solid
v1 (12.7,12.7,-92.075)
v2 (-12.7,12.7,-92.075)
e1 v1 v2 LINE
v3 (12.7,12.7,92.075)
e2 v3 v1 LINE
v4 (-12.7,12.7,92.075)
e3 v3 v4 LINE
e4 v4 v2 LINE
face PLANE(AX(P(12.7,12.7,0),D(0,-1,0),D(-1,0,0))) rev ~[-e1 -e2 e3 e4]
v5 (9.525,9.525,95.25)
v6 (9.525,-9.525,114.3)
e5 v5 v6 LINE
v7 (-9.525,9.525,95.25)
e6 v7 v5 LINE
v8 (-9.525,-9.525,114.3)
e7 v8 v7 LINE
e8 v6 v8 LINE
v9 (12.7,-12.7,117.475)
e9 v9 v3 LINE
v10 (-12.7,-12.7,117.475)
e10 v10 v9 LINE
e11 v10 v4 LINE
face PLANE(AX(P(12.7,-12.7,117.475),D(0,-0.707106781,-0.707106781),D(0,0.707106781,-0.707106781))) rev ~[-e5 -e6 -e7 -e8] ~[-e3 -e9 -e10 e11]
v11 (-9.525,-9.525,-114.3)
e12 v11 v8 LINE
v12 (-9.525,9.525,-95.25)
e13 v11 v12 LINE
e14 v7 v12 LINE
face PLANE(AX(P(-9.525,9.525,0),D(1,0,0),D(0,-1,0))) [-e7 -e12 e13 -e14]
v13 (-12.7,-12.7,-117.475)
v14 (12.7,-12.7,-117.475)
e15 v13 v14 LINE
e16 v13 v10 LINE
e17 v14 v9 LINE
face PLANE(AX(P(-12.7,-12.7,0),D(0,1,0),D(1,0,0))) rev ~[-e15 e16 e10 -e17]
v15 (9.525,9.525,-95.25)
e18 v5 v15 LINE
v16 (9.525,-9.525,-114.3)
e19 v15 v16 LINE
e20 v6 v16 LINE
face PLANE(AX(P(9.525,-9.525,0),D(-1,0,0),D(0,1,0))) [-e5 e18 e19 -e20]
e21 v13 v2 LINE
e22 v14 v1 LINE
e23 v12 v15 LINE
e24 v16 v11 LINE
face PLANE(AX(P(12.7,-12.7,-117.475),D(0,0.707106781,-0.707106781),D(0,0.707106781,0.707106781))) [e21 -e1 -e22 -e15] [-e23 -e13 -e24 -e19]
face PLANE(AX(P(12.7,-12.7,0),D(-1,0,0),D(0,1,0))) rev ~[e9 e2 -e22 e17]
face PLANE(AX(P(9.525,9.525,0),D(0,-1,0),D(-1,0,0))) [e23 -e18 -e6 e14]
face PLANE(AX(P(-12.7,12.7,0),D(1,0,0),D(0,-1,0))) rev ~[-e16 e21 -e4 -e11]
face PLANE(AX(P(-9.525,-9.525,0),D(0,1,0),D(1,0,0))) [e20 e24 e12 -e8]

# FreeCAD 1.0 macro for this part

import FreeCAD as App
import Part
import Sketcher

V = App.Vector
Q = App.Units.Quantity


def add_polygon(sketch, points):
    """Adds a closed chain of lines whose ends are joined by coincident constraints."""
    first, n = sketch.GeometryCount, len(points)
    for a, b in zip(points, points[1:] + points[:1]):
        sketch.addGeometry(Part.LineSegment(App.Vector(*a, 0), App.Vector(*b, 0)), False)
    for i in range(n):
        sketch.addConstraint(Sketcher.Constraint("Coincident", first + i, 2, first + (i + 1) % n, 1))

doc = App.newDocument("Part")
params = doc.addObject("Spreadsheet::Sheet", "Params")
for row, (alias, value) in enumerate([
    ("sketch1_width", "1 in"),
    ("pad1_length", "9.25 in"),
    ("sketch2_width", "1 in"),
], start=1):
    params.set(f"A{row}", alias)
    params.set(f"B{row}", "=" + value)
    params.setAlias(f"B{row}", alias)

body = doc.addObject("PartDesign::Body", "Body")

# Sketch on XY plane
sketch1 = body.newObject("Sketcher::SketchObject", "Sketch")
sketch1.AttachmentSupport = (doc.getObject("XY_Plane"), [""])
sketch1.MapMode = "FlatFace"
add_polygon(sketch1, [(-12.7, 12.7), (-12.7, -12.7), (12.7, -12.7), (12.7, 12.7)])  # lines 0-3
add_polygon(sketch1, [(9.525, -9.525), (-9.525, -9.525), (-9.525, 9.525), (9.525, 9.525)])  # lines 4-7
sketch1.addConstraint(Sketcher.Constraint("Vertical", 0))
sketch1.addConstraint(Sketcher.Constraint("Horizontal", 1))
sketch1.addConstraint(Sketcher.Constraint("Vertical", 2))
sketch1.addConstraint(Sketcher.Constraint("Horizontal", 3))
sketch1.addConstraint(Sketcher.Constraint("Horizontal", 4))
sketch1.addConstraint(Sketcher.Constraint("Vertical", 5))
sketch1.addConstraint(Sketcher.Constraint("Horizontal", 6))
sketch1.addConstraint(Sketcher.Constraint("Vertical", 7))
sketch1.addConstraint(Sketcher.Constraint("Symmetric", 0, 2, 2, 2, -1, 1))
sketch1.addConstraint(Sketcher.Constraint("Symmetric", 4, 2, 6, 2, -1, 1))
sketch1.addConstraint(Sketcher.Constraint("Equal", 3, 0))
sketch1.addConstraint(Sketcher.Constraint("Equal", 6, 5))
sketch1.addConstraint(Sketcher.Constraint("DistanceX", 1, 1, 1, 2, Q("1 in")))
sketch1.addConstraint(Sketcher.Constraint("DistanceX", 0, 2, 4, 2, Q("0.125 in")))
sketch1.setExpression("Constraints[20]", "Params.sketch1_width")
pad1 = body.newObject("PartDesign::Pad", "Pad")
pad1.Profile = sketch1
pad1.setExpression("Length", "Params.pad1_length")
pad1.Midplane = True

# Sketch on YZ plane
sketch2 = body.newObject("Sketcher::SketchObject", "Sketch001")
sketch2.AttachmentSupport = (doc.getObject("YZ_Plane"), [""])
sketch2.MapMode = "FlatFace"
sketch2.AttachmentOffset = App.Placement(V(0, 0, 0.5 * 25.4), App.Rotation())
add_polygon(sketch2, [(12.7, 117.475), (-12.7, 117.475), (12.7, 92.075)])  # lines 0-2
add_polygon(sketch2, [(12.7, -92.075), (-12.7, -117.475), (12.7, -117.475)])  # lines 3-5
sketch2.addConstraint(Sketcher.Constraint("Horizontal", 0))
sketch2.addConstraint(Sketcher.Constraint("Vertical", 2))
sketch2.addConstraint(Sketcher.Constraint("Horizontal", 4))
sketch2.addConstraint(Sketcher.Constraint("Vertical", 5))
sketch2.addConstraint(Sketcher.Constraint("Symmetric", 2, 2, 3, 2, -1, 1))
sketch2.addConstraint(Sketcher.Constraint("Symmetric", 1, 2, 5, 2, -1))
sketch2.addConstraint(Sketcher.Constraint("Perpendicular", 1, 3))
sketch2.addConstraint(Sketcher.Constraint("Vertical", 0, 2, 3, 2))
sketch2.addConstraint(Sketcher.Constraint("DistanceX", 0, 2, 0, 1, Q("1 in")))
sketch2.addConstraint(Sketcher.Constraint("DistanceY", 3, 2, 1, 2, Q("8.25 in")))
sketch2.setExpression("Constraints[14]", "Params.sketch2_width")
pocket1 = body.newObject("PartDesign::Pocket", "Pocket")
pocket1.Profile = sketch2
pocket1.Type = "ThroughAll"

doc.recompute()
